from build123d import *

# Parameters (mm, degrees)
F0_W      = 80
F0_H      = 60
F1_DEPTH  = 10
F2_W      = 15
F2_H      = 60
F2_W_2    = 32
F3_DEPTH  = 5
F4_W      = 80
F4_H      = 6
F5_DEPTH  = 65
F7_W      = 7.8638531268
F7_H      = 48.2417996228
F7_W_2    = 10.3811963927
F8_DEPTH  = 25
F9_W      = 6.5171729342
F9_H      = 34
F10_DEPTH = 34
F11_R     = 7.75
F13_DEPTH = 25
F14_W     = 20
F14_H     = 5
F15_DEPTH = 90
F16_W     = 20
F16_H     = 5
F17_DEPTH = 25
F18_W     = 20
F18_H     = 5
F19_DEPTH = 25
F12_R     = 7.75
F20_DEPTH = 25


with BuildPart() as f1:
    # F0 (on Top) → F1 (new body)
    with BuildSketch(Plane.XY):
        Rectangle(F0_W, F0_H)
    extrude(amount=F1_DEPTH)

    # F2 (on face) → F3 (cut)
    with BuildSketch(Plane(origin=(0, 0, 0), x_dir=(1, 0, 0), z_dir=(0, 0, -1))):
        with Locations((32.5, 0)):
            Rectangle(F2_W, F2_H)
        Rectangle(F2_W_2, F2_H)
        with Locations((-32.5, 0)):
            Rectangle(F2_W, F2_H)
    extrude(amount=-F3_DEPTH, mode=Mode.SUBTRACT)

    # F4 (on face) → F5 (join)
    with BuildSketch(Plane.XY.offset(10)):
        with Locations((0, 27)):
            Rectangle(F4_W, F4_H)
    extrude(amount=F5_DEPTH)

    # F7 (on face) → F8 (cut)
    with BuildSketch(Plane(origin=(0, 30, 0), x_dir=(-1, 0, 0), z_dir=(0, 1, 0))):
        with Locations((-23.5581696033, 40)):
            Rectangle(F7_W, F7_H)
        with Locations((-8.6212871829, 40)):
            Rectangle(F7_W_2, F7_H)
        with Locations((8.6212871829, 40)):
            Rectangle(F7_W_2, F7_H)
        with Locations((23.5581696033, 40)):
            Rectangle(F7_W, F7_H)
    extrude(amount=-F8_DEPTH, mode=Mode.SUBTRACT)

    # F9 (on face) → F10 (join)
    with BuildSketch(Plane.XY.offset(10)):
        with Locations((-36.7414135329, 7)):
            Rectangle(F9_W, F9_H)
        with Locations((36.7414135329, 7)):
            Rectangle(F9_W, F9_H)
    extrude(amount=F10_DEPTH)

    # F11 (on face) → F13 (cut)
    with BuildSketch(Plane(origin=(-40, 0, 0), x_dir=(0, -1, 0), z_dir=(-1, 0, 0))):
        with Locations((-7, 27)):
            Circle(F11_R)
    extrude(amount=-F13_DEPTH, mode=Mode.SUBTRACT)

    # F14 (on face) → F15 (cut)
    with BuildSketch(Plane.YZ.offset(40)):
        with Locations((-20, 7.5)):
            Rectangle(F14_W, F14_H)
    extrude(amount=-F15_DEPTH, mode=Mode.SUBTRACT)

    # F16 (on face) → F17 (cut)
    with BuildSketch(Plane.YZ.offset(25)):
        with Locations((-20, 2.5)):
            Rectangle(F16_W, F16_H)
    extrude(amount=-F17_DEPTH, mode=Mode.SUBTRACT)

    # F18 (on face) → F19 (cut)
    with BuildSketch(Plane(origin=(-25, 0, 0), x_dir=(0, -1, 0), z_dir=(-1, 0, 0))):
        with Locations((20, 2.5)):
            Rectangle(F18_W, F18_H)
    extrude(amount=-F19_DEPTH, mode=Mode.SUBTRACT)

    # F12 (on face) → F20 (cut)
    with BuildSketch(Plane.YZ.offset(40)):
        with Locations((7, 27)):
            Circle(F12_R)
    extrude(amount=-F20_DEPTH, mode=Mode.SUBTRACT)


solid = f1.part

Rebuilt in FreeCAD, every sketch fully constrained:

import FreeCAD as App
import Part
import Sketcher


def add_polygon(sketch, points):
    """Adds a closed chain of lines whose ends are joined by coincident constraints."""
    first, n = sketch.GeometryCount, len(points)
    for a, b in zip(points, points[1:] + points[:1]):
        sketch.addGeometry(Part.LineSegment(App.Vector(*a, 0), App.Vector(*b, 0)), False)
    for i in range(n):
        sketch.addConstraint(Sketcher.Constraint("Coincident", first + i, 2, first + (i + 1) % n, 1))

doc = App.newDocument("Part")
params = doc.addObject("Spreadsheet::Sheet", "Params")
for row, (alias, value) in enumerate([
    ("sketch1_width", "80 mm"),
    ("sketch1_height", "60 mm"),
    ("pad1_length", "10 mm"),
    ("sketch2_width", "15 mm"),
    ("sketch2_width2", "32 mm"),
    ("sketch2_height", "60 mm"),
    ("pocket1_length", "5 mm"),
    ("sketch3_width", "80 mm"),
    ("sketch3_height", "6 mm"),
    ("pad2_length", "65 mm"),
    ("pocket2_length", "25 mm"),
    ("sketch5_height", "34 mm"),
    ("pad3_length", "34 mm"),
    ("sketch6_diameter", "15.5 mm"),
    ("pocket3_length", "25 mm"),
    ("sketch7_width", "20 mm"),
    ("sketch7_height", "5 mm"),
    ("pocket4_length", "90 mm"),
    ("sketch8_width", "20 mm"),
    ("sketch8_height", "5 mm"),
    ("pocket5_length", "25 mm"),
    ("sketch9_width", "20 mm"),
    ("sketch9_height", "5 mm"),
    ("pocket6_length", "25 mm"),
    ("sketch10_diameter", "15.5 mm"),
    ("pocket7_length", "25 mm"),
], start=1):
    params.set(f"A{row}", alias)
    params.set(f"B{row}", "=" + value)
    params.setAlias(f"B{row}", alias)

body = doc.addObject("PartDesign::Body", "Body")

# Sketch on XY plane
sketch1 = body.newObject("Sketcher::SketchObject", "Sketch")
sketch1.AttachmentSupport = (doc.getObject("XY_Plane"), [""])
sketch1.MapMode = "FlatFace"
add_polygon(sketch1, [(-40, 30), (-40, -30), (40, -30), (40, 30)])  # lines 0-3
sketch1.addConstraint(Sketcher.Constraint("Vertical", 0))
sketch1.addConstraint(Sketcher.Constraint("Horizontal", 1))
sketch1.addConstraint(Sketcher.Constraint("Vertical", 2))
sketch1.addConstraint(Sketcher.Constraint("Horizontal", 3))
sketch1.addConstraint(Sketcher.Constraint("Symmetric", 0, 2, 2, 2, -1, 1))
sketch1.addConstraint(Sketcher.Constraint("DistanceX", 1, 1, 1, 2, 80.0))
sketch1.addConstraint(Sketcher.Constraint("DistanceY", 0, 2, 0, 1, 60.0))
sketch1.setExpression("Constraints[9]", "Params.sketch1_width")
sketch1.setExpression("Constraints[10]", "Params.sketch1_height")
pad1 = body.newObject("PartDesign::Pad", "Pad")
pad1.Profile = sketch1
pad1.setExpression("Length", "Params.pad1_length")

# Sketch on XY plane
sketch2 = body.newObject("Sketcher::SketchObject", "Sketch001")
sketch2.AttachmentSupport = (doc.getObject("XY_Plane"), [""])
sketch2.MapMode = "FlatFace"
add_polygon(sketch2, [(25, -30), (25, 30), (40, 30), (40, -30)])  # lines 0-3
add_polygon(sketch2, [(-16, -30), (-16, 30), (16, 30), (16, -30)])  # lines 4-7
add_polygon(sketch2, [(-40, -30), (-40, 30), (-25, 30), (-25, -30)])  # lines 8-11
sketch2.addConstraint(Sketcher.Constraint("Vertical", 0))
sketch2.addConstraint(Sketcher.Constraint("Horizontal", 1))
sketch2.addConstraint(Sketcher.Constraint("Vertical", 2))
sketch2.addConstraint(Sketcher.Constraint("Horizontal", 3))
sketch2.addConstraint(Sketcher.Constraint("Vertical", 4))
sketch2.addConstraint(Sketcher.Constraint("Horizontal", 5))
sketch2.addConstraint(Sketcher.Constraint("Vertical", 6))
sketch2.addConstraint(Sketcher.Constraint("Horizontal", 7))
sketch2.addConstraint(Sketcher.Constraint("Vertical", 8))
sketch2.addConstraint(Sketcher.Constraint("Horizontal", 9))
sketch2.addConstraint(Sketcher.Constraint("Vertical", 10))
sketch2.addConstraint(Sketcher.Constraint("Horizontal", 11))
sketch2.addConstraint(Sketcher.Constraint("Symmetric", 4, 2, 6, 2, -1, 1))
sketch2.addConstraint(Sketcher.Constraint("Symmetric", 2, 2, 8, 2, -1, 1))
sketch2.addConstraint(Sketcher.Constraint("Symmetric", 0, 2, 10, 2, -1, 1))
sketch2.addConstraint(Sketcher.Constraint("Horizontal", 1, 2, 4, 2))
sketch2.addConstraint(Sketcher.Constraint("Horizontal", 3, 2, 6, 2))
sketch2.addConstraint(Sketcher.Constraint("DistanceX", 1, 1, 1, 2, 15.0))
sketch2.addConstraint(Sketcher.Constraint("DistanceX", 5, 1, 5, 2, 32.0))
sketch2.addConstraint(Sketcher.Constraint("DistanceY", 0, 1, 0, 2, 60.0))
sketch2.addConstraint(Sketcher.Constraint("DistanceX", -1, 1, 0, 2, 25.0))
sketch2.setExpression("Constraints[29]", "Params.sketch2_width")
sketch2.setExpression("Constraints[30]", "Params.sketch2_width2")
sketch2.setExpression("Constraints[31]", "Params.sketch2_height")
pocket1 = body.newObject("PartDesign::Pocket", "Pocket")
pocket1.Profile = sketch2
pocket1.setExpression("Length", "Params.pocket1_length")
pocket1.Reversed = True

# Sketch on XY plane
sketch3 = body.newObject("Sketcher::SketchObject", "Sketch002")
sketch3.AttachmentSupport = (doc.getObject("XY_Plane"), [""])
sketch3.MapMode = "FlatFace"
sketch3.AttachmentOffset = App.Placement(App.Vector(0, 0, 10), App.Rotation())
add_polygon(sketch3, [(-40, 30), (-40, 24), (40, 24), (40, 30)])  # lines 0-3
sketch3.addConstraint(Sketcher.Constraint("Vertical", 0))
sketch3.addConstraint(Sketcher.Constraint("Horizontal", 1))
sketch3.addConstraint(Sketcher.Constraint("Vertical", 2))
sketch3.addConstraint(Sketcher.Constraint("Horizontal", 3))
sketch3.addConstraint(Sketcher.Constraint("DistanceX", 1, 1, 1, 2, 80.0))
sketch3.addConstraint(Sketcher.Constraint("DistanceY", 0, 2, 0, 1, 6.0))
sketch3.addConstraint(Sketcher.Constraint("DistanceX", 0, 2, -1, 1, 40.0))
sketch3.addConstraint(Sketcher.Constraint("DistanceY", -1, 1, 0, 2, 24.0))
sketch3.setExpression("Constraints[8]", "Params.sketch3_width")
sketch3.setExpression("Constraints[9]", "Params.sketch3_height")
pad2 = body.newObject("PartDesign::Pad", "Pad001")
pad2.Profile = sketch3
pad2.setExpression("Length", "Params.pad2_length")

# Sketch on XZ plane
sketch4 = body.newObject("Sketcher::SketchObject", "Sketch003")
sketch4.AttachmentSupport = (doc.getObject("XZ_Plane"), [""])
sketch4.MapMode = "FlatFace"
sketch4.AttachmentOffset = App.Placement(App.Vector(0, 0, -30), App.Rotation())
add_polygon(sketch4, [(27.490096, 64.1209), (27.490096, 15.8791), (19.626243, 15.8791), (19.626243, 64.1209)])  # lines 0-3
add_polygon(sketch4, [(13.811885, 64.1209), (13.811885, 15.8791), (3.430689, 15.8791), (3.430689, 64.1209)])  # lines 4-7
add_polygon(sketch4, [(-3.430689, 64.1209), (-3.430689, 15.8791), (-13.811885, 15.8791), (-13.811885, 64.1209)])  # lines 8-11
add_polygon(sketch4, [(-19.626243, 64.1209), (-19.626243, 15.8791), (-27.490096, 15.8791), (-27.490096, 64.1209)])  # lines 12-15
sketch4.addConstraint(Sketcher.Constraint("Vertical", 0))
sketch4.addConstraint(Sketcher.Constraint("Horizontal", 1))
sketch4.addConstraint(Sketcher.Constraint("Vertical", 2))
sketch4.addConstraint(Sketcher.Constraint("Horizontal", 3))
sketch4.addConstraint(Sketcher.Constraint("Vertical", 4))
sketch4.addConstraint(Sketcher.Constraint("Horizontal", 5))
sketch4.addConstraint(Sketcher.Constraint("Vertical", 6))
sketch4.addConstraint(Sketcher.Constraint("Horizontal", 7))
sketch4.addConstraint(Sketcher.Constraint("Vertical", 8))
sketch4.addConstraint(Sketcher.Constraint("Horizontal", 9))
sketch4.addConstraint(Sketcher.Constraint("Vertical", 10))
sketch4.addConstraint(Sketcher.Constraint("Horizontal", 11))
sketch4.addConstraint(Sketcher.Constraint("Vertical", 12))
sketch4.addConstraint(Sketcher.Constraint("Horizontal", 13))
sketch4.addConstraint(Sketcher.Constraint("Vertical", 14))
sketch4.addConstraint(Sketcher.Constraint("Horizontal", 15))
sketch4.addConstraint(Sketcher.Constraint("Symmetric", 5, 2, 8, 2, -2))
sketch4.addConstraint(Sketcher.Constraint("Symmetric", 7, 2, 10, 2, -2))
sketch4.addConstraint(Sketcher.Constraint("Symmetric", 1, 2, 12, 2, -2))
sketch4.addConstraint(Sketcher.Constraint("Symmetric", 3, 2, 14, 2, -2))
sketch4.addConstraint(Sketcher.Constraint("Horizontal", 1, 2, 4, 2))
sketch4.addConstraint(Sketcher.Constraint("Horizontal", 3, 2, 6, 2))
sketch4.addConstraint(Sketcher.Constraint("DistanceY", 0, 2, 0, 1, 48.2418))
sketch4.addConstraint(Sketcher.Constraint("DistanceY", -1, 1, 0, 2, 15.8791))
sketch4.addConstraint(Sketcher.Constraint("DistanceX", 1, 2, 1, 1, 7.863853))
sketch4.addConstraint(Sketcher.Constraint("DistanceX", 5, 2, 5, 1, 10.381196))
sketch4.addConstraint(Sketcher.Constraint("DistanceX", -1, 1, 5, 2, 3.430689))
sketch4.addConstraint(Sketcher.Constraint("DistanceX", 4, 2, 0, 2, 13.678211))
pocket2 = body.newObject("PartDesign::Pocket", "Pocket001")
pocket2.Profile = sketch4
pocket2.setExpression("Length", "Params.pocket2_length")
pocket2.Reversed = True

# Sketch on XY plane
sketch5 = body.newObject("Sketcher::SketchObject", "Sketch004")
sketch5.AttachmentSupport = (doc.getObject("XY_Plane"), [""])
sketch5.MapMode = "FlatFace"
sketch5.AttachmentOffset = App.Placement(App.Vector(0, 0, 10), App.Rotation())
add_polygon(sketch5, [(-40, 24), (-40, -10), (-33.482827, -10), (-33.482827, 24)])  # lines 0-3
add_polygon(sketch5, [(33.482827, 24), (33.482827, -10), (40, -10), (40, 24)])  # lines 4-7
sketch5.addConstraint(Sketcher.Constraint("Vertical", 0))
sketch5.addConstraint(Sketcher.Constraint("Horizontal", 1))
sketch5.addConstraint(Sketcher.Constraint("Vertical", 2))
sketch5.addConstraint(Sketcher.Constraint("Horizontal", 3))
sketch5.addConstraint(Sketcher.Constraint("Vertical", 4))
sketch5.addConstraint(Sketcher.Constraint("Horizontal", 5))
sketch5.addConstraint(Sketcher.Constraint("Vertical", 6))
sketch5.addConstraint(Sketcher.Constraint("Horizontal", 7))
sketch5.addConstraint(Sketcher.Constraint("Symmetric", 1, 2, 4, 2, -2))
sketch5.addConstraint(Sketcher.Constraint("Symmetric", 3, 2, 6, 2, -2))
sketch5.addConstraint(Sketcher.Constraint("DistanceY", 0, 2, 0, 1, 34.0))
sketch5.addConstraint(Sketcher.Constraint("DistanceX", 0, 2, -1, 1, 40.0))
sketch5.addConstraint(Sketcher.Constraint("DistanceY", 0, 2, -1, 1, 10.0))
sketch5.addConstraint(Sketcher.Constraint("DistanceX", 1, 1, 1, 2, 6.517173))
sketch5.setExpression("Constraints[18]", "Params.sketch5_height")
pad3 = body.newObject("PartDesign::Pad", "Pad002")
pad3.Profile = sketch5
pad3.setExpression("Length", "Params.pad3_length")

# Sketch on YZ plane
sketch6 = body.newObject("Sketcher::SketchObject", "Sketch005")
sketch6.AttachmentSupport = (doc.getObject("YZ_Plane"), [""])
sketch6.MapMode = "FlatFace"
sketch6.AttachmentOffset = App.Placement(App.Vector(0, 0, -40), App.Rotation())
sketch6.addGeometry(Part.Circle(App.Vector(7, 27, 0), App.Vector(0, 0, 1), 7.75), False)
sketch6.addConstraint(Sketcher.Constraint("Diameter", 0, 15.5))
sketch6.addConstraint(Sketcher.Constraint("DistanceX", -1, 1, 0, 3, 7.0))
sketch6.addConstraint(Sketcher.Constraint("DistanceY", -1, 1, 0, 3, 27.0))
sketch6.setExpression("Constraints[0]", "Params.sketch6_diameter")
pocket3 = body.newObject("PartDesign::Pocket", "Pocket002")
pocket3.Profile = sketch6
pocket3.setExpression("Length", "Params.pocket3_length")
pocket3.Reversed = True

# Sketch on YZ plane
sketch7 = body.newObject("Sketcher::SketchObject", "Sketch006")
sketch7.AttachmentSupport = (doc.getObject("YZ_Plane"), [""])
sketch7.MapMode = "FlatFace"
sketch7.AttachmentOffset = App.Placement(App.Vector(0, 0, 40), App.Rotation())
add_polygon(sketch7, [(-30, 10), (-30, 5), (-10, 5), (-10, 10)])  # lines 0-3
sketch7.addConstraint(Sketcher.Constraint("Vertical", 0))
sketch7.addConstraint(Sketcher.Constraint("Horizontal", 1))
sketch7.addConstraint(Sketcher.Constraint("Vertical", 2))
sketch7.addConstraint(Sketcher.Constraint("Horizontal", 3))
sketch7.addConstraint(Sketcher.Constraint("DistanceX", 1, 1, 1, 2, 20.0))
sketch7.addConstraint(Sketcher.Constraint("DistanceY", 0, 2, 0, 1, 5.0))
sketch7.addConstraint(Sketcher.Constraint("DistanceX", 0, 2, -1, 1, 30.0))
sketch7.addConstraint(Sketcher.Constraint("DistanceY", -1, 1, 0, 2, 5.0))
sketch7.setExpression("Constraints[8]", "Params.sketch7_width")
sketch7.setExpression("Constraints[9]", "Params.sketch7_height")
pocket4 = body.newObject("PartDesign::Pocket", "Pocket003")
pocket4.Profile = sketch7
pocket4.setExpression("Length", "Params.pocket4_length")

# Sketch on YZ plane
sketch8 = body.newObject("Sketcher::SketchObject", "Sketch007")
sketch8.AttachmentSupport = (doc.getObject("YZ_Plane"), [""])
sketch8.MapMode = "FlatFace"
sketch8.AttachmentOffset = App.Placement(App.Vector(0, 0, 25), App.Rotation())
add_polygon(sketch8, [(-30, 5), (-30, 0), (-10, 0), (-10, 5)])  # lines 0-3
sketch8.addConstraint(Sketcher.Constraint("Vertical", 0))
sketch8.addConstraint(Sketcher.Constraint("Horizontal", 1))
sketch8.addConstraint(Sketcher.Constraint("Vertical", 2))
sketch8.addConstraint(Sketcher.Constraint("Horizontal", 3))
sketch8.addConstraint(Sketcher.Constraint("PointOnObject", 0, 2, -1))
sketch8.addConstraint(Sketcher.Constraint("DistanceX", 1, 1, 1, 2, 20.0))
sketch8.addConstraint(Sketcher.Constraint("DistanceY", 0, 2, 0, 1, 5.0))
sketch8.addConstraint(Sketcher.Constraint("DistanceX", 0, 2, -1, 1, 30.0))
sketch8.setExpression("Constraints[9]", "Params.sketch8_width")
sketch8.setExpression("Constraints[10]", "Params.sketch8_height")
pocket5 = body.newObject("PartDesign::Pocket", "Pocket004")
pocket5.Profile = sketch8
pocket5.setExpression("Length", "Params.pocket5_length")

# Sketch on YZ plane
sketch9 = body.newObject("Sketcher::SketchObject", "Sketch008")
sketch9.AttachmentSupport = (doc.getObject("YZ_Plane"), [""])
sketch9.MapMode = "FlatFace"
sketch9.AttachmentOffset = App.Placement(App.Vector(0, 0, -25), App.Rotation())
add_polygon(sketch9, [(-10, 5), (-10, 0), (-30, 0), (-30, 5)])  # lines 0-3
sketch9.addConstraint(Sketcher.Constraint("Vertical", 0))
sketch9.addConstraint(Sketcher.Constraint("Horizontal", 1))
sketch9.addConstraint(Sketcher.Constraint("Vertical", 2))
sketch9.addConstraint(Sketcher.Constraint("Horizontal", 3))
sketch9.addConstraint(Sketcher.Constraint("PointOnObject", 0, 2, -1))
sketch9.addConstraint(Sketcher.Constraint("DistanceX", 1, 2, 1, 1, 20.0))
sketch9.addConstraint(Sketcher.Constraint("DistanceY", 0, 2, 0, 1, 5.0))
sketch9.addConstraint(Sketcher.Constraint("DistanceX", 0, 2, -1, 1, 10.0))
sketch9.setExpression("Constraints[9]", "Params.sketch9_width")
sketch9.setExpression("Constraints[10]", "Params.sketch9_height")
pocket6 = body.newObject("PartDesign::Pocket", "Pocket005")
pocket6.Profile = sketch9
pocket6.setExpression("Length", "Params.pocket6_length")
pocket6.Reversed = True

# Sketch on YZ plane
sketch10 = body.newObject("Sketcher::SketchObject", "Sketch009")
sketch10.AttachmentSupport = (doc.getObject("YZ_Plane"), [""])
sketch10.MapMode = "FlatFace"
sketch10.AttachmentOffset = App.Placement(App.Vector(0, 0, 40), App.Rotation())
sketch10.addGeometry(Part.Circle(App.Vector(7, 27, 0), App.Vector(0, 0, 1), 7.75), False)
sketch10.addConstraint(Sketcher.Constraint("Diameter", 0, 15.5))
sketch10.addConstraint(Sketcher.Constraint("DistanceX", -1, 1, 0, 3, 7.0))
sketch10.addConstraint(Sketcher.Constraint("DistanceY", -1, 1, 0, 3, 27.0))
sketch10.setExpression("Constraints[0]", "Params.sketch10_diameter")
pocket7 = body.newObject("PartDesign::Pocket", "Pocket006")
pocket7.Profile = sketch10
pocket7.setExpression("Length", "Params.pocket7_length")

doc.recompute()
